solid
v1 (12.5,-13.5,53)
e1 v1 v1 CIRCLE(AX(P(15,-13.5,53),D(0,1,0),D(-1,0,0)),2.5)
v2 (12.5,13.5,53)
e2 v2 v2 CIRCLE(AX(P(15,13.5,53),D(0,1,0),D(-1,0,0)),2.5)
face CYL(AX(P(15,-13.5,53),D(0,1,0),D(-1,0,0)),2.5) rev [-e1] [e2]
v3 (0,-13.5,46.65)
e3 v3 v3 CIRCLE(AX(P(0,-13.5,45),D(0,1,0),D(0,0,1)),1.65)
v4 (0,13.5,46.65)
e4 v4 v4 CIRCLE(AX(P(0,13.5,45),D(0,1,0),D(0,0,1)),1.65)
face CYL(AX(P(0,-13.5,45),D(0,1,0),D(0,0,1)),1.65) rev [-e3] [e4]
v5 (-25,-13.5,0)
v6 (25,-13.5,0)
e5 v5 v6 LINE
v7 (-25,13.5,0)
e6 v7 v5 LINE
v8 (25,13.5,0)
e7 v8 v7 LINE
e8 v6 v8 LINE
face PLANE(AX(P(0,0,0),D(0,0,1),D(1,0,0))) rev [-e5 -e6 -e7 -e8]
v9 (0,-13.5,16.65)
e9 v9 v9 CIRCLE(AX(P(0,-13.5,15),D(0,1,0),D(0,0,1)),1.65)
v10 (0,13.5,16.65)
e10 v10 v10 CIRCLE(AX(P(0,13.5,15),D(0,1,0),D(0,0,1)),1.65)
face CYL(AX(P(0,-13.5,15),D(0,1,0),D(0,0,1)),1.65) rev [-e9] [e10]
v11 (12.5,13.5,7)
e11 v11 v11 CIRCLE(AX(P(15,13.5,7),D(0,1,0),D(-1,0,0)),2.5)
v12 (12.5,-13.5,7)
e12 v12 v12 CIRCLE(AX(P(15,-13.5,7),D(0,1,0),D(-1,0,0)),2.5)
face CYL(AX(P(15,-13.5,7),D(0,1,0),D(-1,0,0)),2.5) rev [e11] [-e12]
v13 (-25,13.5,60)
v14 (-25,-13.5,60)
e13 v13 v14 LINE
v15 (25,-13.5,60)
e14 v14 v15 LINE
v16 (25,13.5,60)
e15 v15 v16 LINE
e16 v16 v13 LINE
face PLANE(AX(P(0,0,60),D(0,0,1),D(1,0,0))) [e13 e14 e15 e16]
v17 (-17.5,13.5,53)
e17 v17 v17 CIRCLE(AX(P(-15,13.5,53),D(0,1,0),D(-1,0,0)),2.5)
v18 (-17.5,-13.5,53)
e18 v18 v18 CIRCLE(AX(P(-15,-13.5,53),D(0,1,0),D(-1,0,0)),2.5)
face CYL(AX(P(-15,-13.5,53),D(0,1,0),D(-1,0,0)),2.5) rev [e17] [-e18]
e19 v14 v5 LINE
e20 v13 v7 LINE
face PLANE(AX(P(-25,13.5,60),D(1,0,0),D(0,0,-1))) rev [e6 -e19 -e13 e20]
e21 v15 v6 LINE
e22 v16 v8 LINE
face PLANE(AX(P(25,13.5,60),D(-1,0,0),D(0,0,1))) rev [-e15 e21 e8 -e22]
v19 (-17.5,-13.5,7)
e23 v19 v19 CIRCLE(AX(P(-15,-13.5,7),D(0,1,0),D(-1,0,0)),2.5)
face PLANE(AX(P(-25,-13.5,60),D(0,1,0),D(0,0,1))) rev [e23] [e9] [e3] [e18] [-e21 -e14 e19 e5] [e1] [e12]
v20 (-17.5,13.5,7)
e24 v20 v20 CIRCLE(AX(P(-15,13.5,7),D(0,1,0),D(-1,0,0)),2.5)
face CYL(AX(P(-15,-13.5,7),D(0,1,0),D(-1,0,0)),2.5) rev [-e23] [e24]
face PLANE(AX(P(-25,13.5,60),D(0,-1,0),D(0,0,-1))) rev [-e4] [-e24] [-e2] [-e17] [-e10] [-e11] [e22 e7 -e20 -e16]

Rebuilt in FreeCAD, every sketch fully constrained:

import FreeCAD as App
import Part
import Sketcher
from FreeCAD import Vector
Q = App.Units.Quantity


def add_polygon(sketch, points):
    """Adds a closed chain of lines whose ends are joined by coincident constraints."""
    first, n = sketch.GeometryCount, len(points)
    for a, b in zip(points, points[1:] + points[:1]):
        sketch.addGeometry(Part.LineSegment(App.Vector(*a, 0), App.Vector(*b, 0)), False)
    for i in range(n):
        sketch.addConstraint(Sketcher.Constraint("Coincident", first + i, 2, first + (i + 1) % n, 1))

doc = App.newDocument("Part")
params = doc.addObject("Spreadsheet::Sheet", "Params")
for row, (alias, value) in enumerate([
    ("sketch1_width", "50 mm"),
    ("sketch1_height", "27 mm"),
    ("pad1_length", "60 mm"),
    ("sketch2_diameter", "5 mm"),
    ("pocket1_length", "27 mm"),
    ("linearpattern_pitch", "46 mm"),
    ("sketch3_diameter", "5 mm"),
    ("pocket2_length", "27 mm"),
    ("linearpattern2_pitch", "46 mm"),
    ("sketch4_diameter", "3.3 mm"),
    ("pocket3_length", "27 mm"),
], start=1):
    params.set(f"A{row}", alias)
    params.set(f"B{row}", "=" + value)
    params.setAlias(f"B{row}", alias)

body = doc.addObject("PartDesign::Body", "Body")

# Sketch on XY plane
sketch1 = doc.addObject("Sketcher::SketchObject", "Sketch")
body.addObject(sketch1)
sketch1.AttachmentSupport = (doc.XY_Plane, [""])
sketch1.MapMode = "FlatFace"
add_polygon(sketch1, [(-25, 14), (-25, -14), (25, -14), (25, 14)])  # lines 0-3
sketch1.addConstraint([
    Sketcher.Constraint("Vertical", 0),
    Sketcher.Constraint("Horizontal", 1),
    Sketcher.Constraint("Vertical", 2),
    Sketcher.Constraint("Horizontal", 3),
    Sketcher.Constraint("Symmetric", 0, 2, 2, 2, -1, 1),
    Sketcher.Constraint("DistanceX", 1, 1, 1, 2, Q("50 mm")),
    Sketcher.Constraint("DistanceY", 0, 2, 0, 1, Q("27 mm")),
])
sketch1.setExpression("Constraints[9]", "Params.sketch1_width")
sketch1.setExpression("Constraints[10]", "Params.sketch1_height")
pad1 = doc.addObject("PartDesign::Pad", "Pad")
body.addObject(pad1)
pad1.Profile = sketch1
pad1.setExpression("Length", "Params.pad1_length")

# Sketch on XZ plane
sketch2 = doc.addObject("Sketcher::SketchObject", "Sketch001")
body.addObject(sketch2)
sketch2.AttachmentSupport = (doc.XZ_Plane, [""])
sketch2.MapMode = "FlatFace"
sketch2.AttachmentOffset = App.Placement(Vector(0, 0, -13.5), App.Rotation())
sketch2.addGeometry(Part.Circle(Vector(-15, 7, 0), Vector(0, 0, 1), 2.5), False)
sketch2.addConstraint([
    Sketcher.Constraint("Diameter", 0, Q("5 mm")),
    Sketcher.Constraint("DistanceX", 0, 3, -1, 1, Q("15 mm")),
    Sketcher.Constraint("DistanceY", -1, 1, 0, 3, Q("7 mm")),
])
sketch2.setExpression("Constraints[0]", "Params.sketch2_diameter")
pocket1 = doc.addObject("PartDesign::Pocket", "Pocket")
body.addObject(pocket1)
pocket1.Profile = sketch2
pocket1.setExpression("Length", "Params.pocket1_length")
pocket1.Reversed = True
doc.recompute()

linearpattern = doc.addObject("PartDesign::LinearPattern", "LinearPattern")
body.addObject(linearpattern)
linearpattern.Originals = [pocket1]
linearpattern.Direction = (doc.Z_Axis, [""])
linearpattern.Mode = "offset"
linearpattern.setExpression("Offset", "Params.linearpattern_pitch")
linearpattern.Occurrences = 2
body.Tip = linearpattern

# Sketch on XZ plane
sketch3 = doc.addObject("Sketcher::SketchObject", "Sketch002")
body.addObject(sketch3)
sketch3.AttachmentSupport = (doc.XZ_Plane, [""])
sketch3.MapMode = "FlatFace"
sketch3.AttachmentOffset = App.Placement(Vector(0, 0, -13.5), App.Rotation())
sketch3.addGeometry(Part.Circle(Vector(15, 7, 0), Vector(0, 0, 1), 2.5), False)
sketch3.addConstraint([
    Sketcher.Constraint("Diameter", 0, Q("5 mm")),
    Sketcher.Constraint("DistanceX", -1, 1, 0, 3, Q("15 mm")),
    Sketcher.Constraint("DistanceY", -1, 1, 0, 3, Q("7 mm")),
])
sketch3.setExpression("Constraints[0]", "Params.sketch3_diameter")
pocket2 = doc.addObject("PartDesign::Pocket", "Pocket001")
body.addObject(pocket2)
pocket2.Profile = sketch3
pocket2.setExpression("Length", "Params.pocket2_length")
pocket2.Reversed = True
doc.recompute()

linearpattern2 = doc.addObject("PartDesign::LinearPattern", "LinearPattern001")
body.addObject(linearpattern2)
linearpattern2.Originals = [pocket2]
linearpattern2.Direction = (doc.Z_Axis, [""])
linearpattern2.Mode = "offset"
linearpattern2.setExpression("Offset", "Params.linearpattern2_pitch")
linearpattern2.Occurrences = 2
body.Tip = linearpattern2

# Sketch on XZ plane
sketch4 = doc.addObject("Sketcher::SketchObject", "Sketch003")
body.addObject(sketch4)
sketch4.AttachmentSupport = (doc.XZ_Plane, [""])
sketch4.MapMode = "FlatFace"
sketch4.AttachmentOffset = App.Placement(Vector(0, 0, -13.5), App.Rotation())
sketch4.addGeometry([
    Part.Circle(Vector(0, 15, 0), Vector(0, 0, 1), 1.6),
    Part.Circle(Vector(0, 45, 0), Vector(0, 0, 1), 1.6),
], False)
sketch4.addConstraint([
    Sketcher.Constraint("Equal", 0, 1),
    Sketcher.Constraint("PointOnObject", 0, 3, -2),
    Sketcher.Constraint("PointOnObject", 1, 3, -2),
    Sketcher.Constraint("Diameter", 0, Q("3.3 mm")),
    Sketcher.Constraint("DistanceY", -1, 1, 0, 3, Q("15 mm")),
    Sketcher.Constraint("DistanceY", -1, 1, 1, 3, Q("45 mm")),
])
sketch4.setExpression("Constraints[3]", "Params.sketch4_diameter")
pocket3 = doc.addObject("PartDesign::Pocket", "Pocket002")
body.addObject(pocket3)
pocket3.Profile = sketch4
pocket3.setExpression("Length", "Params.pocket3_length")
pocket3.Reversed = True

doc.recompute()
